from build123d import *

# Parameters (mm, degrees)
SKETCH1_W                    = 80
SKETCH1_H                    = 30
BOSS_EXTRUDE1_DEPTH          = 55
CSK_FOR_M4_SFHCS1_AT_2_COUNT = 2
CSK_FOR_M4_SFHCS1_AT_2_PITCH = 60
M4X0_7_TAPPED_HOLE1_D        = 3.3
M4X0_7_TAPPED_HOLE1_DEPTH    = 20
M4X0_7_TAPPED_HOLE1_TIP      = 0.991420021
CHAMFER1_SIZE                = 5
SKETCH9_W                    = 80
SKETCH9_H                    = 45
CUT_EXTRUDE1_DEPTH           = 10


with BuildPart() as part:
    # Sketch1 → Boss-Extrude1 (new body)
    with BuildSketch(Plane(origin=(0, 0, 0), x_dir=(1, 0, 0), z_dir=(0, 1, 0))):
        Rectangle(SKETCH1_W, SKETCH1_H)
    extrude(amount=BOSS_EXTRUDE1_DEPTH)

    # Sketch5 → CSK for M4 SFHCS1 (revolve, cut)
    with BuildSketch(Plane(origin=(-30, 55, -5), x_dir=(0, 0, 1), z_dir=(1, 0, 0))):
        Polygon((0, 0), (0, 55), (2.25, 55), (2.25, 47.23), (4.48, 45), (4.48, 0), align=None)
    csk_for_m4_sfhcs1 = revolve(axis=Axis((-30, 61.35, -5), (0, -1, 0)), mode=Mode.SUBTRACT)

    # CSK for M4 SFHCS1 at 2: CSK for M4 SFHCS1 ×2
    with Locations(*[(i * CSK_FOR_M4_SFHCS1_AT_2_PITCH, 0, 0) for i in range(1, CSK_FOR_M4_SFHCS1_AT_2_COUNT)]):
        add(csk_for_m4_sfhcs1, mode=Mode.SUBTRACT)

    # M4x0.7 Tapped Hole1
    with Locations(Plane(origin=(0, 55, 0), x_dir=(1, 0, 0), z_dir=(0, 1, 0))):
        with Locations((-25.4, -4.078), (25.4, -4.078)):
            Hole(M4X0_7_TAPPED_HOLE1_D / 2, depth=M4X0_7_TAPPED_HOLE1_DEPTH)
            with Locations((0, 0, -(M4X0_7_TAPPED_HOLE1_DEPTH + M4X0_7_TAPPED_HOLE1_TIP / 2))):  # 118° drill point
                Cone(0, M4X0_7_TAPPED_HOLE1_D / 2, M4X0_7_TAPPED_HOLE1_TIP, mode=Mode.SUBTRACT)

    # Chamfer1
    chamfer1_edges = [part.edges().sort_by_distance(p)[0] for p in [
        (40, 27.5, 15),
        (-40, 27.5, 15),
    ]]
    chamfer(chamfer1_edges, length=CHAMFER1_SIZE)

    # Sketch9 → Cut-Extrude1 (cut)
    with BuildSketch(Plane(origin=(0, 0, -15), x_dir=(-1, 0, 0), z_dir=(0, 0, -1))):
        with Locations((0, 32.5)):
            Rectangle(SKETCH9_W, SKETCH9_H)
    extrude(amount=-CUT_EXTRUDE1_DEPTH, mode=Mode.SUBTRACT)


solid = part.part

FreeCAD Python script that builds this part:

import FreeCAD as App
import Part
import Sketcher

V = App.Vector
Q = App.Units.Quantity


def edges_at(feature, points):
    """Names of the edges that pass closest to the given points."""
    edges = feature.Shape.Edges
    near = lambda p: min(range(len(edges)), key=lambda i: edges[i].distToShape(Part.Vertex(*p))[0])
    return sorted({f"Edge{near(p) + 1}" for p in points})


def add_polygon(sketch, points):
    """Adds a closed chain of lines whose ends are joined by coincident constraints."""
    first, n = sketch.GeometryCount, len(points)
    for a, b in zip(points, points[1:] + points[:1]):
        sketch.addGeometry(Part.LineSegment(App.Vector(*a, 0), App.Vector(*b, 0)), False)
    for i in range(n):
        sketch.addConstraint(Sketcher.Constraint("Coincident", first + i, 2, first + (i + 1) % n, 1))

doc = App.newDocument("Part")
params = doc.addObject("Spreadsheet::Sheet", "Params")
for row, (alias, value) in enumerate([
    ("sketch1_width", "80 mm"),
    ("sketch1_height", "30 mm"),
    ("pad1_length", "55 mm"),
    ("sketch2_width", "55 mm"),
    ("sketch2_width2", "45 mm"),
    ("sketch2_width3", "7.77 mm"),
    ("sketch2_height", "4.48 mm"),
    ("groove_angle", "360 deg"),
    ("linearpattern_pitch", "60 mm"),
    ("sketch3_diameter", "3.3 mm"),
    ("hole_diameter", "3.3 mm"),
    ("hole_depth", "20 mm"),
    ("chamfer_size", "5 mm"),
    ("sketch4_width", "80 mm"),
    ("sketch4_height", "45 mm"),
    ("pocket1_length", "10 mm"),
], start=1):
    params.set(f"A{row}", alias)
    params.set(f"B{row}", "=" + value)
    params.setAlias(f"B{row}", alias)

body = doc.addObject("PartDesign::Body", "Body")

# Sketch on XZ plane
sketch1 = doc.addObject("Sketcher::SketchObject", "Sketch")
body.addObject(sketch1)
sketch1.AttachmentSupport = (doc.XZ_Plane, [""])
sketch1.MapMode = "FlatFace"
add_polygon(sketch1, [(-40, -15), (-40, 15), (40, 15), (40, -15)])  # lines 0-3
sketch1.addConstraint([
    Sketcher.Constraint("Vertical", 0),
    Sketcher.Constraint("Horizontal", 1),
    Sketcher.Constraint("Vertical", 2),
    Sketcher.Constraint("Horizontal", 3),
    Sketcher.Constraint("Symmetric", 0, 2, 2, 2, -1, 1),
    Sketcher.Constraint("DistanceX", 1, 1, 1, 2, 80.0),
    Sketcher.Constraint("DistanceY", 0, 1, 0, 2, 30.0),
])
sketch1.setExpression("Constraints[9]", "Params.sketch1_width")
sketch1.setExpression("Constraints[10]", "Params.sketch1_height")
pad1 = doc.addObject("PartDesign::Pad", "Pad")
body.addObject(pad1)
pad1.Profile = sketch1
pad1.setExpression("Length", "Params.pad1_length")
pad1.Reversed = True

# Sketch on YZ plane
sketch2 = doc.addObject("Sketcher::SketchObject", "Sketch001")
body.addObject(sketch2)
sketch2.AttachmentSupport = (doc.YZ_Plane, [""])
sketch2.MapMode = "FlatFace"
sketch2.AttachmentOffset = App.Placement(V(0, 0, -30), App.Rotation())
add_polygon(sketch2, [(0, -5), (55, -5), (55, -0.52), (10, -0.52), (7.77, -2.75), (0, -2.75)])  # lines 0-5
sketch2.addGeometry(Part.LineSegment(V(55, -5, 0), V(0, -5, 0)), True)  # axis
sketch2.addConstraint([
    Sketcher.Constraint("Horizontal", 0),
    Sketcher.Constraint("Vertical", 1),
    Sketcher.Constraint("Horizontal", 2),
    Sketcher.Constraint("Horizontal", 4),
    Sketcher.Constraint("Vertical", 5),
    Sketcher.Constraint("Horizontal", 6),
    Sketcher.Constraint("Coincident", 6, 1, 0, 2),
    Sketcher.Constraint("PointOnObject", 4, 2, -2),
    Sketcher.Constraint("PointOnObject", 6, 2, -2),
    Sketcher.Constraint("DistanceX", 0, 1, 0, 2, 55.0),
    Sketcher.Constraint("DistanceX", 2, 2, 2, 1, 45.0),
    Sketcher.Constraint("Angle", 3, Q("-135 deg")),
    Sketcher.Constraint("DistanceY", 0, 2, -1, 1, 5.0),
    Sketcher.Constraint("DistanceX", 4, 2, 4, 1, 7.77),
    Sketcher.Constraint("DistanceY", 1, 1, 1, 2, 4.48),
])
sketch2.setExpression("Constraints[15]", "Params.sketch2_width")
sketch2.setExpression("Constraints[16]", "Params.sketch2_width2")
sketch2.setExpression("Constraints[19]", "Params.sketch2_width3")
sketch2.setExpression("Constraints[20]", "Params.sketch2_height")
groove = doc.addObject("PartDesign::Groove", "Groove")
body.addObject(groove)
groove.Profile = sketch2
groove.ReferenceAxis = (sketch2, ["Axis0"])
groove.setExpression("Angle", "Params.groove_angle")
doc.recompute()

linearpattern = doc.addObject("PartDesign::LinearPattern", "LinearPattern")
body.addObject(linearpattern)
linearpattern.Originals = [groove]
linearpattern.Direction = (doc.X_Axis, [""])
linearpattern.Mode = "offset"
linearpattern.setExpression("Offset", "Params.linearpattern_pitch")
linearpattern.Occurrences = 2
body.Tip = linearpattern

# Sketch on XZ plane
sketch3 = doc.addObject("Sketcher::SketchObject", "Sketch002")
body.addObject(sketch3)
sketch3.AttachmentSupport = (doc.XZ_Plane, [""])
sketch3.MapMode = "FlatFace"
sketch3.AttachmentOffset = App.Placement(V(0, 0, -55), App.Rotation())
sketch3.addGeometry([
    Part.Circle(V(-25.4, 4.078, 0), V(0, 0, 1), 1.65),
    Part.Circle(V(25.4, 4.078, 0), V(0, 0, 1), 1.65),
], False)
sketch3.addConstraint([
    Sketcher.Constraint("Equal", 0, 1),
    Sketcher.Constraint("Symmetric", 0, 3, 1, 3, -2),
    Sketcher.Constraint("Diameter", 0, 3.3),
    Sketcher.Constraint("DistanceX", 0, 3, -1, 1, 25.4),
    Sketcher.Constraint("DistanceY", -1, 1, 0, 3, 4.078),
])
sketch3.setExpression("Constraints[2]", "Params.sketch3_diameter")
doc.recompute()
hole = doc.addObject("PartDesign::Hole", "Hole")
body.addObject(hole)
hole.Profile = sketch3
hole.ThreadType = "None"
hole.setExpression("Diameter", "Params.hole_diameter")
hole.DepthType = "Dimension"
hole.setExpression("Depth", "Params.hole_depth")
hole.DrillPoint = "Angled"
hole.DrillPointAngle = 118
hole.Reversed = True
doc.recompute()

chamfer = doc.addObject("PartDesign::Chamfer", "Chamfer")
body.addObject(chamfer)
chamfer.Base = (hole, edges_at(hole, [(40, 27.5, 15), (-40, 27.5, 15)]))
chamfer.setExpression("Size", "Params.chamfer_size")

# Sketch on XY plane
sketch4 = doc.addObject("Sketcher::SketchObject", "Sketch003")
body.addObject(sketch4)
sketch4.AttachmentSupport = (doc.XY_Plane, [""])
sketch4.MapMode = "FlatFace"
sketch4.AttachmentOffset = App.Placement(V(0, 0, -15), App.Rotation())
add_polygon(sketch4, [(40, 55), (40, 10), (-40, 10), (-40, 55)])  # lines 0-3
sketch4.addConstraint([
    Sketcher.Constraint("Vertical", 0),
    Sketcher.Constraint("Horizontal", 1),
    Sketcher.Constraint("Vertical", 2),
    Sketcher.Constraint("Horizontal", 3),
    Sketcher.Constraint("DistanceX", 1, 2, 1, 1, 80.0),
    Sketcher.Constraint("DistanceY", 0, 2, 0, 1, 45.0),
    Sketcher.Constraint("DistanceX", -1, 1, 0, 2, 40.0),
    Sketcher.Constraint("DistanceY", -1, 1, 0, 2, 10.0),
])
sketch4.setExpression("Constraints[8]", "Params.sketch4_width")
sketch4.setExpression("Constraints[9]", "Params.sketch4_height")
pocket1 = doc.addObject("PartDesign::Pocket", "Pocket")
body.addObject(pocket1)
pocket1.Profile = sketch4
pocket1.setExpression("Length", "Params.pocket1_length")
pocket1.Reversed = True

doc.recompute()
